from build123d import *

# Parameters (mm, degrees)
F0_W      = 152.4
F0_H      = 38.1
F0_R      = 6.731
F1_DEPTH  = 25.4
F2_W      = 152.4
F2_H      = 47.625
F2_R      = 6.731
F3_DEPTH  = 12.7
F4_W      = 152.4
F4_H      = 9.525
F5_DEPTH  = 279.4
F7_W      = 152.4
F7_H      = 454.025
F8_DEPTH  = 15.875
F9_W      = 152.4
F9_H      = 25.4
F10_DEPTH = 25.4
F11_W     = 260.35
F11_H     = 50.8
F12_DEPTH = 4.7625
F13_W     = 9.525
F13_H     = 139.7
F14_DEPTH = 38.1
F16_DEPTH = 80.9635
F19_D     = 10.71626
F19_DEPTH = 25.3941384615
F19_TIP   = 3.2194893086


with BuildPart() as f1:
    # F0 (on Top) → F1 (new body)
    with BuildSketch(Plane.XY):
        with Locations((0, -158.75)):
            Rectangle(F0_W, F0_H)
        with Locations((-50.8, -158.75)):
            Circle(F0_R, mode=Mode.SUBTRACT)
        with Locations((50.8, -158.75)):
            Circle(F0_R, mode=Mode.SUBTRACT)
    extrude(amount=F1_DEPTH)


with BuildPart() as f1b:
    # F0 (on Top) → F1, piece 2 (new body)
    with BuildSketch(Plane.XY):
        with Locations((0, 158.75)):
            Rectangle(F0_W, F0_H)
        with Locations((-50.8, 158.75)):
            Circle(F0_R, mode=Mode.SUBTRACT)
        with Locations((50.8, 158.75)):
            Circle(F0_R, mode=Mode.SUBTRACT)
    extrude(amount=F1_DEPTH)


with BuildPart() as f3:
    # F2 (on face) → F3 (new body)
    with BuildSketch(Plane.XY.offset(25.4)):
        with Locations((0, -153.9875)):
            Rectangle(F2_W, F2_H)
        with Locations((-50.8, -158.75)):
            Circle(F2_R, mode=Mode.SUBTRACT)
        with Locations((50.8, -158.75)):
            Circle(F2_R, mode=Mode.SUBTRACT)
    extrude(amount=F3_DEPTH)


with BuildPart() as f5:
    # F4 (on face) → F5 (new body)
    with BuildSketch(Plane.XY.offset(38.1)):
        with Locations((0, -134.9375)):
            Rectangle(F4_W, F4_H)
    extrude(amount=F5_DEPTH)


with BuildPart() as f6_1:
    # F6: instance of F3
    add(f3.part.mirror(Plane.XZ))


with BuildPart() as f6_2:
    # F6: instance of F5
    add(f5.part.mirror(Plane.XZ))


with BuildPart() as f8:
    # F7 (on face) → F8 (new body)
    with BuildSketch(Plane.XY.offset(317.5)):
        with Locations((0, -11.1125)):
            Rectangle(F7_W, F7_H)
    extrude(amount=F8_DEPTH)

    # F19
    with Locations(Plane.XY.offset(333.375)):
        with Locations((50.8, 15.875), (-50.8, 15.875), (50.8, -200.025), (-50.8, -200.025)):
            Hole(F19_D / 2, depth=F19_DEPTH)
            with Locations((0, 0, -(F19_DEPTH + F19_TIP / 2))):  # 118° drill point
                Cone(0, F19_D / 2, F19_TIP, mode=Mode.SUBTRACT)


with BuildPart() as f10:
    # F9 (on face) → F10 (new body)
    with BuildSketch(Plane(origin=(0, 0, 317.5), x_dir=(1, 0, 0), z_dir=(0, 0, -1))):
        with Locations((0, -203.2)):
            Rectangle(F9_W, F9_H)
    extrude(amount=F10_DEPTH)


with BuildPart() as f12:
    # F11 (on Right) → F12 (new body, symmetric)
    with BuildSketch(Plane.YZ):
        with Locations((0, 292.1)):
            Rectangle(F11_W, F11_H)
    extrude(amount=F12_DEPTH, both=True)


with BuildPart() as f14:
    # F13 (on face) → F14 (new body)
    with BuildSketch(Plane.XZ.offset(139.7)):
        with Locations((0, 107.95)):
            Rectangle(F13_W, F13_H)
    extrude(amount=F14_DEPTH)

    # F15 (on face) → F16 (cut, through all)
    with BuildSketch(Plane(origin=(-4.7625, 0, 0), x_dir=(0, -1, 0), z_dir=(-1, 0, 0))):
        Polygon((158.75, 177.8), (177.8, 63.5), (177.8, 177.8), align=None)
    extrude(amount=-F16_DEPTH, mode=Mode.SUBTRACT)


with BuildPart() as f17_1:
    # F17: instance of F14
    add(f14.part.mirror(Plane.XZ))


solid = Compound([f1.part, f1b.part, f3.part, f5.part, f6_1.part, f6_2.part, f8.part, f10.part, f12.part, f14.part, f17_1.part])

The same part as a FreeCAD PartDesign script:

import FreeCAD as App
import Part
import Sketcher

V = App.Vector
Q = App.Units.Quantity


def add_polygon(sketch, points):
    """Adds a closed chain of lines whose ends are joined by coincident constraints."""
    first, n = sketch.GeometryCount, len(points)
    for a, b in zip(points, points[1:] + points[:1]):
        sketch.addGeometry(Part.LineSegment(App.Vector(*a, 0), App.Vector(*b, 0)), False)
    for i in range(n):
        sketch.addConstraint(Sketcher.Constraint("Coincident", first + i, 2, first + (i + 1) % n, 1))

doc = App.newDocument("Part")
body = doc.addObject("PartDesign::Body", "Body")

# Sketch on XY plane
sketch1 = body.newObject("Sketcher::SketchObject", "Sketch")
sketch1.AttachmentSupport = (doc.getObject("XY_Plane"), [""])
sketch1.MapMode = "FlatFace"
add_polygon(sketch1, [(-76, -140), (-76, -178), (76, -178), (76, -140)])  # lines 0-3
sketch1.addGeometry(Part.Circle(V(-51, -159, 0), V(0, 0, 1), 7), False)  # 4
sketch1.addGeometry(Part.Circle(V(51, -159, 0), V(0, 0, 1), 7), False)  # 5
sketch1.addConstraint([
    Sketcher.Constraint("Vertical", 0),
    Sketcher.Constraint("Horizontal", 1),
    Sketcher.Constraint("Vertical", 2),
    Sketcher.Constraint("Horizontal", 3),
    Sketcher.Constraint("Equal", 4, 5),
    Sketcher.Constraint("Symmetric", 4, 3, 5, 3, -2),
    Sketcher.Constraint("Diameter", 4, Q("0.53 in")),
    Sketcher.Constraint("DistanceX", 1, 1, 1, 2, Q("6 in")),
    Sketcher.Constraint("DistanceY", 0, 2, 0, 1, Q("1.5 in")),
    Sketcher.Constraint("DistanceX", 4, 3, -1, 1, Q("2 in")),
    Sketcher.Constraint("DistanceX", 0, 2, -1, 1, Q("3 in")),
    Sketcher.Constraint("DistanceY", 0, 2, -1, 1, Q("7 in")),
    Sketcher.Constraint("DistanceY", 4, 3, -1, 1, Q("6.25 in")),
])
pad1 = body.newObject("PartDesign::Pad", "Pad")
pad1.Profile = sketch1
pad1.Length = Q("1 in")
body2 = doc.addObject("PartDesign::Body", "Body001")

# Sketch on XY plane
sketch2 = body2.newObject("Sketcher::SketchObject", "Sketch001")
sketch2.AttachmentSupport = (doc.getObject("XY_Plane001"), [""])
sketch2.MapMode = "FlatFace"
add_polygon(sketch2, [(-76, 178), (-76, 140), (76, 140), (76, 178)])  # lines 0-3
sketch2.addGeometry(Part.Circle(V(-51, 159, 0), V(0, 0, 1), 7), False)  # 4
sketch2.addGeometry(Part.Circle(V(51, 159, 0), V(0, 0, 1), 7), False)  # 5
sketch2.addConstraint([
    Sketcher.Constraint("Vertical", 0),
    Sketcher.Constraint("Horizontal", 1),
    Sketcher.Constraint("Vertical", 2),
    Sketcher.Constraint("Horizontal", 3),
    Sketcher.Constraint("Equal", 4, 5),
    Sketcher.Constraint("Symmetric", 4, 3, 5, 3, -2),
    Sketcher.Constraint("Diameter", 4, Q("0.53 in")),
    Sketcher.Constraint("DistanceX", 1, 1, 1, 2, Q("6 in")),
    Sketcher.Constraint("DistanceY", 0, 2, 0, 1, Q("1.5 in")),
    Sketcher.Constraint("DistanceX", 4, 3, -1, 1, Q("2 in")),
    Sketcher.Constraint("DistanceX", 0, 2, -1, 1, Q("3 in")),
    Sketcher.Constraint("DistanceY", -1, 1, 2, 2, Q("7 in")),
    Sketcher.Constraint("DistanceY", -1, 1, 4, 3, Q("6.25 in")),
])
pad2 = body2.newObject("PartDesign::Pad", "Pad001")
pad2.Profile = sketch2
pad2.Length = Q("1 in")
body3 = doc.addObject("PartDesign::Body", "Body002")

# Sketch on XY plane
sketch3 = body3.newObject("Sketcher::SketchObject", "Sketch002")
sketch3.AttachmentSupport = (doc.getObject("XY_Plane002"), [""])
sketch3.MapMode = "FlatFace"
sketch3.AttachmentOffset = App.Placement(V(0, 0, 1 * 25.4), App.Rotation())
add_polygon(sketch3, [(-76, -130), (-76, -178), (76, -178), (76, -130)])  # lines 0-3
sketch3.addGeometry(Part.Circle(V(-51, -159, 0), V(0, 0, 1), 7), False)  # 4
sketch3.addGeometry(Part.Circle(V(51, -159, 0), V(0, 0, 1), 7), False)  # 5
sketch3.addConstraint([
    Sketcher.Constraint("Vertical", 0),
    Sketcher.Constraint("Horizontal", 1),
    Sketcher.Constraint("Vertical", 2),
    Sketcher.Constraint("Horizontal", 3),
    Sketcher.Constraint("Equal", 4, 5),
    Sketcher.Constraint("Symmetric", 4, 3, 5, 3, -2),
    Sketcher.Constraint("Diameter", 4, Q("0.53 in")),
    Sketcher.Constraint("DistanceX", 1, 1, 1, 2, Q("6 in")),
    Sketcher.Constraint("DistanceX", 4, 3, -1, 1, Q("2 in")),
    Sketcher.Constraint("DistanceX", 0, 2, -1, 1, Q("3 in")),
    Sketcher.Constraint("DistanceY", 0, 2, -1, 1, Q("7 in")),
    Sketcher.Constraint("DistanceY", 0, 2, 0, 1, Q("1.875 in")),
    Sketcher.Constraint("DistanceY", 4, 3, -1, 1, Q("6.25 in")),
])
pad3 = body3.newObject("PartDesign::Pad", "Pad002")
pad3.Profile = sketch3
pad3.Length = Q("0.5 in")
body4 = doc.addObject("PartDesign::Body", "Body003")

# Sketch on XY plane
sketch4 = body4.newObject("Sketcher::SketchObject", "Sketch003")
sketch4.AttachmentSupport = (doc.getObject("XY_Plane003"), [""])
sketch4.MapMode = "FlatFace"
sketch4.AttachmentOffset = App.Placement(V(0, 0, 1.5 * 25.4), App.Rotation())
add_polygon(sketch4, [(-76, -130), (-76, -140), (76, -140), (76, -130)])  # lines 0-3
sketch4.addConstraint([
    Sketcher.Constraint("Vertical", 0),
    Sketcher.Constraint("Horizontal", 1),
    Sketcher.Constraint("Vertical", 2),
    Sketcher.Constraint("Horizontal", 3),
    Sketcher.Constraint("DistanceX", 1, 1, 1, 2, Q("6 in")),
    Sketcher.Constraint("DistanceX", 0, 2, -1, 1, Q("3 in")),
    Sketcher.Constraint("DistanceY", 0, 2, -1, 1, Q("5.5 in")),
    Sketcher.Constraint("DistanceY", 0, 2, 0, 1, Q("0.375 in")),
])
pad4 = body4.newObject("PartDesign::Pad", "Pad003")
pad4.Profile = sketch4
pad4.Length = Q("11 in")
body5 = doc.addObject("PartDesign::Body", "Body004")
doc.recompute()

mirroring = doc.addObject("Part::Mirroring", "Mirroring")
mirroring.Source = body3
mirroring.Base = V(0, 0, 0)
mirroring.Normal = V(0, -1, 0)
body5.BaseFeature = mirroring
doc.recompute()
body6 = doc.addObject("PartDesign::Body", "Body005")
doc.recompute()

mirroring2 = doc.addObject("Part::Mirroring", "Mirroring001")
mirroring2.Source = body4
mirroring2.Base = V(0, 0, 0)
mirroring2.Normal = V(0, -1, 0)
body6.BaseFeature = mirroring2
doc.recompute()
body7 = doc.addObject("PartDesign::Body", "Body006")

# Sketch on XY plane
sketch5 = body7.newObject("Sketcher::SketchObject", "Sketch004")
sketch5.AttachmentSupport = (doc.getObject("XY_Plane006"), [""])
sketch5.MapMode = "FlatFace"
sketch5.AttachmentOffset = App.Placement(V(0, 0, 12.5 * 25.4), App.Rotation())
add_polygon(sketch5, [(-76, 216), (-76, -238), (76, -238), (76, 216)])  # lines 0-3
sketch5.addConstraint([
    Sketcher.Constraint("Vertical", 0),
    Sketcher.Constraint("Horizontal", 1),
    Sketcher.Constraint("Vertical", 2),
    Sketcher.Constraint("Horizontal", 3),
    Sketcher.Constraint("DistanceX", 1, 1, 1, 2, Q("6 in")),
    Sketcher.Constraint("DistanceX", 0, 2, -1, 1, Q("3 in")),
    Sketcher.Constraint("DistanceY", -1, 1, 2, 2, Q("8.5 in")),
    Sketcher.Constraint("DistanceY", 0, 2, 0, 1, Q("17.875 in")),
])
pad5 = body7.newObject("PartDesign::Pad", "Pad004")
pad5.Profile = sketch5
pad5.Length = Q("0.625 in")

# Sketch on XY plane
sketch6 = body7.newObject("Sketcher::SketchObject", "Sketch005")
sketch6.AttachmentSupport = (doc.getObject("XY_Plane006"), [""])
sketch6.MapMode = "FlatFace"
sketch6.AttachmentOffset = App.Placement(V(0, 0, 13.125 * 25.4), App.Rotation())
sketch6.addGeometry([
    Part.Circle(V(51, 16, 0), V(0, 0, 1), 5),
    Part.Circle(V(-51, 16, 0), V(0, 0, 1), 5),
    Part.Circle(V(51, -200, 0), V(0, 0, 1), 5),
    Part.Circle(V(-51, -200, 0), V(0, 0, 1), 5),
], False)
sketch6.addConstraint([
    Sketcher.Constraint("Equal", 0, 1),
    Sketcher.Constraint("Equal", 1, 2),
    Sketcher.Constraint("Equal", 2, 3),
    Sketcher.Constraint("Symmetric", 0, 3, 1, 3, -2),
    Sketcher.Constraint("Symmetric", 2, 3, 3, 3, -2),
    Sketcher.Constraint("Vertical", 0, 3, 2, 3),
    Sketcher.Constraint("DistanceX", -1, 1, 0, 3, Q("2 in")),
    Sketcher.Constraint("Diameter", 0, Q("0.4219 in")),
    Sketcher.Constraint("DistanceY", 2, 3, 0, 3, Q("8.5 in")),
    Sketcher.Constraint("DistanceY", -1, 1, 0, 3, Q("0.625 in")),
])
doc.recompute()
hole = body7.newObject("PartDesign::Hole", "Hole")
hole.Profile = sketch6
hole.ThreadType = "None"
hole.Diameter = Q("0.4219 in")
hole.DepthType = "Dimension"
hole.Depth = 25.394138
hole.DrillPoint = "Angled"
hole.DrillPointAngle = 118
body8 = doc.addObject("PartDesign::Body", "Body007")

# Sketch on XY plane
sketch7 = body8.newObject("Sketcher::SketchObject", "Sketch006")
sketch7.AttachmentSupport = (doc.getObject("XY_Plane007"), [""])
sketch7.MapMode = "FlatFace"
sketch7.AttachmentOffset = App.Placement(V(0, 0, 12.5 * 25.4), App.Rotation())
add_polygon(sketch7, [(-76, 190), (-76, 216), (76, 216), (76, 190)])  # lines 0-3
sketch7.addConstraint([
    Sketcher.Constraint("Vertical", 0),
    Sketcher.Constraint("Horizontal", 1),
    Sketcher.Constraint("Vertical", 2),
    Sketcher.Constraint("Horizontal", 3),
    Sketcher.Constraint("DistanceX", 1, 1, 1, 2, Q("6 in")),
    Sketcher.Constraint("DistanceY", 0, 1, 0, 2, Q("1 in")),
    Sketcher.Constraint("DistanceX", 0, 2, -1, 1, Q("3 in")),
    Sketcher.Constraint("DistanceY", -1, 1, 0, 2, Q("8.5 in")),
])
pad6 = body8.newObject("PartDesign::Pad", "Pad005")
pad6.Profile = sketch7
pad6.Length = Q("1 in")
pad6.Reversed = True
body9 = doc.addObject("PartDesign::Body", "Body008")

# Sketch on YZ plane
sketch8 = body9.newObject("Sketcher::SketchObject", "Sketch007")
sketch8.AttachmentSupport = (doc.getObject("YZ_Plane008"), [""])
sketch8.MapMode = "FlatFace"
add_polygon(sketch8, [(-130, 318), (-130, 267), (130, 267), (130, 318)])  # lines 0-3
sketch8.addConstraint([
    Sketcher.Constraint("Vertical", 0),
    Sketcher.Constraint("Horizontal", 1),
    Sketcher.Constraint("Vertical", 2),
    Sketcher.Constraint("Horizontal", 3),
    Sketcher.Constraint("DistanceY", 0, 2, 0, 1, Q("2 in")),
    Sketcher.Constraint("DistanceX", 1, 1, 1, 2, Q("10.25 in")),
    Sketcher.Constraint("DistanceY", -1, 1, 0, 2, Q("10.5 in")),
    Sketcher.Constraint("DistanceX", 0, 2, -1, 1, Q("5.125 in")),
])
pad7 = body9.newObject("PartDesign::Pad", "Pad006")
pad7.Profile = sketch8
pad7.Length = Q("0.375 in")
pad7.Midplane = True
body10 = doc.addObject("PartDesign::Body", "Body009")

# Sketch on XZ plane
sketch9 = body10.newObject("Sketcher::SketchObject", "Sketch008")
sketch9.AttachmentSupport = (doc.getObject("XZ_Plane009"), [""])
sketch9.MapMode = "FlatFace"
sketch9.AttachmentOffset = App.Placement(V(0, 0, 5.5 * 25.4), App.Rotation())
add_polygon(sketch9, [(-5, 178), (-5, 38), (5, 38), (5, 178)])  # lines 0-3
sketch9.addConstraint([
    Sketcher.Constraint("Vertical", 0),
    Sketcher.Constraint("Horizontal", 1),
    Sketcher.Constraint("Vertical", 2),
    Sketcher.Constraint("Horizontal", 3),
    Sketcher.Constraint("DistanceY", 0, 2, 0, 1, Q("5.5 in")),
    Sketcher.Constraint("DistanceY", -1, 1, 2, 2, Q("7 in")),
    Sketcher.Constraint("DistanceX", 1, 1, 1, 2, Q("0.375 in")),
    Sketcher.Constraint("DistanceX", 0, 2, -1, 1, Q("0.1875 in")),
])
pad8 = body10.newObject("PartDesign::Pad", "Pad007")
pad8.Profile = sketch9
pad8.Length = Q("1.5 in")

# Sketch on YZ plane
sketch10 = body10.newObject("Sketcher::SketchObject", "Sketch009")
sketch10.AttachmentSupport = (doc.getObject("YZ_Plane009"), [""])
sketch10.MapMode = "FlatFace"
sketch10.AttachmentOffset = App.Placement(V(0, 0, -0.1875 * 25.4), App.Rotation())
add_polygon(sketch10, [(-159, 178), (-178, 64), (-178, 178)])  # lines 0-2
sketch10.addConstraint([
    Sketcher.Constraint("Vertical", 1),
    Sketcher.Constraint("Horizontal", 2),
    Sketcher.Constraint("DistanceY", 1, 1, 1, 2, Q("4.5 in")),
    Sketcher.Constraint("DistanceX", 0, 2, -1, 1, Q("7 in")),
    Sketcher.Constraint("DistanceY", -1, 1, 1, 2, Q("7 in")),
    Sketcher.Constraint("DistanceX", 2, 1, 2, 2, Q("0.75 in")),
])
pocket1 = body10.newObject("PartDesign::Pocket", "Pocket")
pocket1.Profile = sketch10
pocket1.Type = "ThroughAll"
pocket1.Reversed = True
body11 = doc.addObject("PartDesign::Body", "Body010")
doc.recompute()

mirroring3 = doc.addObject("Part::Mirroring", "Mirroring002")
mirroring3.Source = body10
mirroring3.Base = V(0, 0, 0)
mirroring3.Normal = V(0, -1, 0)
body11.BaseFeature = mirroring3
doc.recompute()
mirroring.Visibility = False
mirroring2.Visibility = False
mirroring3.Visibility = False

doc.recompute()
